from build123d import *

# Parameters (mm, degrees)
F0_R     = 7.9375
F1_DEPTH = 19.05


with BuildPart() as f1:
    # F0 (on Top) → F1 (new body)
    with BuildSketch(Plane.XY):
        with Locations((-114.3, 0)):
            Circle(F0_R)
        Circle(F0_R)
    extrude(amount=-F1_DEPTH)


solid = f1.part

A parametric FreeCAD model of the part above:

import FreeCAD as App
import Part
import Sketcher

V = App.Vector
Q = App.Units.Quantity

doc = App.newDocument("Part")
body = doc.addObject("PartDesign::Body", "Body")
body.AllowCompound = True

# Sketch on XY plane
sketch1 = body.newObject("Sketcher::SketchObject", "Sketch")
sketch1.AttachmentSupport = (doc.getObject("XY_Plane"), [""])
sketch1.MapMode = "FlatFace"
sketch1.addGeometry([
    Part.Circle(V(-114, 0, 0), V(0, 0, 1), 8),
    Part.Circle(V(0, 0, 0), V(0, 0, 1), 8),
], False)
sketch1.addConstraint([
    Sketcher.Constraint("Coincident", 1, 3, -1, 1),
    Sketcher.Constraint("Equal", 0, 1),
    Sketcher.Constraint("PointOnObject", 0, 3, -1),
    Sketcher.Constraint("Diameter", 0, Q("0.625 in")),
    Sketcher.Constraint("DistanceX", 0, 3, -1, 1, Q("4.5 in")),
])
pad1 = body.newObject("PartDesign::Pad", "Pad")
pad1.Profile = sketch1
pad1.Length = Q("0.75 in")
pad1.Reversed = True

doc.recompute()
